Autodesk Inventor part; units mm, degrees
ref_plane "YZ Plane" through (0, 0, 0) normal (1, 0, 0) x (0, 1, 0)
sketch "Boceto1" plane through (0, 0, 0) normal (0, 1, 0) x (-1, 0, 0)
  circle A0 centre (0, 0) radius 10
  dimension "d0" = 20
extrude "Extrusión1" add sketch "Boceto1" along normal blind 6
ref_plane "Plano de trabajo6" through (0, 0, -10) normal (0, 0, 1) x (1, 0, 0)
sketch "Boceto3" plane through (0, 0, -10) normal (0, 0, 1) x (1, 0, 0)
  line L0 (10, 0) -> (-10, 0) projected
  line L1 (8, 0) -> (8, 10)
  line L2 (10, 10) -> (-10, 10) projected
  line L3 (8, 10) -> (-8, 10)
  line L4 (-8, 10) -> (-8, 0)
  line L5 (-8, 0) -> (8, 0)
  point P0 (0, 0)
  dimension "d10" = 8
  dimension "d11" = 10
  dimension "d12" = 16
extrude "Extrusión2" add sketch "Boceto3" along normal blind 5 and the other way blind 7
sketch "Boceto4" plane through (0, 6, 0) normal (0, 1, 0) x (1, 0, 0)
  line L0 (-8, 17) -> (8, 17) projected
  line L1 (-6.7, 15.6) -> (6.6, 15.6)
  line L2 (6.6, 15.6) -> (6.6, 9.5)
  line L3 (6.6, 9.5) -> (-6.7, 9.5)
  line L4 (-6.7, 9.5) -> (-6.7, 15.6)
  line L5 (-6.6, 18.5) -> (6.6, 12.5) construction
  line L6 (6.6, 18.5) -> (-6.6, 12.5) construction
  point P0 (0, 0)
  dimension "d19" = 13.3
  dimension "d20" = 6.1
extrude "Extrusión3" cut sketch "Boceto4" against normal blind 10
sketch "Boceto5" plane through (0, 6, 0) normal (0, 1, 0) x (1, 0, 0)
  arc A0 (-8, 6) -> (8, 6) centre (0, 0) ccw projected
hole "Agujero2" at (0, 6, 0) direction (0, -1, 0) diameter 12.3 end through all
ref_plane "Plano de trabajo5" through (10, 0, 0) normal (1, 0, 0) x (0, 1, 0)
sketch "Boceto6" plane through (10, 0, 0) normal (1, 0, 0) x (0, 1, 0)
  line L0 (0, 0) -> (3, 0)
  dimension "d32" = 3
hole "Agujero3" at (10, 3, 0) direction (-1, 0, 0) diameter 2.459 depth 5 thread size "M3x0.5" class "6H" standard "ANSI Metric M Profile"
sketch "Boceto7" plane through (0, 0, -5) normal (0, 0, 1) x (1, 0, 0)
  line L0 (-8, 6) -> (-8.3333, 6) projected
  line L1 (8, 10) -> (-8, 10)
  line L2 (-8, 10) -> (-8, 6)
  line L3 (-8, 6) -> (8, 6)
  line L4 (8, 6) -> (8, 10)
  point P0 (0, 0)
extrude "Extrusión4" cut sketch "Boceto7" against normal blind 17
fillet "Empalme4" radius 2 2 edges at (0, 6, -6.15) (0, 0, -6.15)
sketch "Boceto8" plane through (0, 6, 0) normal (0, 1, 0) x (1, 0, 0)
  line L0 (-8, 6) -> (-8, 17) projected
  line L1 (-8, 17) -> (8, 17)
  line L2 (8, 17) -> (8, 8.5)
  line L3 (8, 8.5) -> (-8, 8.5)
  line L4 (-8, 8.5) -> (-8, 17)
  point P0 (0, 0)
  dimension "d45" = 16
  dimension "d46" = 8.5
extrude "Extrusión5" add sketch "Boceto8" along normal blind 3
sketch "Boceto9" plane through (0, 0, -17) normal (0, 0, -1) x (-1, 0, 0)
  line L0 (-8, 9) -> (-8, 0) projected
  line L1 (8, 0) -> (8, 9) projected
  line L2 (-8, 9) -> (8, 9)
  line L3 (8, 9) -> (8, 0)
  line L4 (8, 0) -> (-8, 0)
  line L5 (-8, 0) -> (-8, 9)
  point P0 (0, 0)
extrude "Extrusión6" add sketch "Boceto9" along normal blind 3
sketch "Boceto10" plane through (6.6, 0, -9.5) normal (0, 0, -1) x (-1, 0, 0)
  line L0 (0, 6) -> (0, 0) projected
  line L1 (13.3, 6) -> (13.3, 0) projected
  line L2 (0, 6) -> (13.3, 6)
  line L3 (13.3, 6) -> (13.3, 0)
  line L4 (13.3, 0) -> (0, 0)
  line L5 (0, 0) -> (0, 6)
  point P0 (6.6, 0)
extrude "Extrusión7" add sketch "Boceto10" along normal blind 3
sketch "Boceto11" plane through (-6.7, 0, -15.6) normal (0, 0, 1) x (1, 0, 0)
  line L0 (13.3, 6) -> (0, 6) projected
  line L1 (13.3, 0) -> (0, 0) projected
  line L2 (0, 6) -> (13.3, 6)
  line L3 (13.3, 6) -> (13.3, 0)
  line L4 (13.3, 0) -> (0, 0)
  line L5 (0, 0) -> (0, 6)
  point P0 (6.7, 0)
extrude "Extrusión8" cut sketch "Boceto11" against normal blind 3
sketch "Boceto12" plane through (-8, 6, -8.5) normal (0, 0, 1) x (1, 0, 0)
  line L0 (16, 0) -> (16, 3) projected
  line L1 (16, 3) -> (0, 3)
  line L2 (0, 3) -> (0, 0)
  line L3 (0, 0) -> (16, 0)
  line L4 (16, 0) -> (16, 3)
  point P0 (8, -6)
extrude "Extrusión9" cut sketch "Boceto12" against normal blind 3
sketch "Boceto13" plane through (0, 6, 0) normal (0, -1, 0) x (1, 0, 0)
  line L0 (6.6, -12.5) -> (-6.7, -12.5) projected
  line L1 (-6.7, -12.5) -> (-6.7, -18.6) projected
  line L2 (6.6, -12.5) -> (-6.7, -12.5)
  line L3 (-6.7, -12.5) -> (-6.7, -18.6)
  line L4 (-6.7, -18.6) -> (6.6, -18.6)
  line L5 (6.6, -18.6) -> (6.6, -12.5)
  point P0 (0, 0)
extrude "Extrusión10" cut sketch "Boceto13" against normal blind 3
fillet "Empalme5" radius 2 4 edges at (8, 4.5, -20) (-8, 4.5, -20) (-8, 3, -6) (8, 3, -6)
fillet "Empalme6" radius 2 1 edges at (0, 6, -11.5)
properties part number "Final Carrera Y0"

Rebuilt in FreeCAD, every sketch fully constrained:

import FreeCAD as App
import Part
import Sketcher

V = App.Vector


def edges_at(feature, points):
    """Names of the edges that pass closest to the given points."""
    edges = feature.Shape.Edges
    near = lambda p: min(range(len(edges)), key=lambda i: edges[i].distToShape(Part.Vertex(*p))[0])
    return sorted({f"Edge{near(p) + 1}" for p in points})


def add_polygon(sketch, points):
    """Adds a closed chain of lines whose ends are joined by coincident constraints."""
    first, n = sketch.GeometryCount, len(points)
    for a, b in zip(points, points[1:] + points[:1]):
        sketch.addGeometry(Part.LineSegment(App.Vector(*a, 0), App.Vector(*b, 0)), False)
    for i in range(n):
        sketch.addConstraint(Sketcher.Constraint("Coincident", first + i, 2, first + (i + 1) % n, 1))

doc = App.newDocument("Part")
body = doc.addObject("PartDesign::Body", "Body")

# Sketch on XZ plane
sketch1 = body.newObject("Sketcher::SketchObject", "Sketch")
sketch1.AttachmentSupport = (doc.getObject("XZ_Plane"), [""])
sketch1.MapMode = "FlatFace"
sketch1.addGeometry(Part.Circle(V(0, 0, 0), V(0, 0, 1), 10), False)
sketch1.addConstraint(Sketcher.Constraint("Coincident", 0, 3, -1, 1))
sketch1.addConstraint(Sketcher.Constraint("Diameter", 0, 20.0))
pad1 = body.newObject("PartDesign::Pad", "Pad")
pad1.Profile = sketch1
pad1.Length = 6
pad1.Reversed = True

# Sketch on XY plane
sketch2 = body.newObject("Sketcher::SketchObject", "Sketch001")
sketch2.AttachmentSupport = (doc.getObject("XY_Plane"), [""])
sketch2.MapMode = "FlatFace"
sketch2.AttachmentOffset = App.Placement(V(0, 0, -10), App.Rotation())
add_polygon(sketch2, [(-8, 0), (8, 0), (8, 10), (-8, 10)])  # lines 0-3
sketch2.addConstraint(Sketcher.Constraint("Horizontal", 0))
sketch2.addConstraint(Sketcher.Constraint("Vertical", 1))
sketch2.addConstraint(Sketcher.Constraint("Horizontal", 2))
sketch2.addConstraint(Sketcher.Constraint("Vertical", 3))
sketch2.addConstraint(Sketcher.Constraint("Symmetric", 0, 2, 3, 2, -1, 1))
sketch2.addConstraint(Sketcher.Constraint("DistanceX", 0, 1, 0, 2, 16.0))
sketch2.addConstraint(Sketcher.Constraint("DistanceY", 1, 1, 1, 2, 10.0))
pad2 = body.newObject("PartDesign::Pad", "Pad001")
pad2.Profile = sketch2
pad2.Type = "TwoLengths"
pad2.Length = 5
pad2.Length2 = 7

# Sketch on XZ plane
sketch3 = body.newObject("Sketcher::SketchObject", "Sketch002")
sketch3.AttachmentSupport = (doc.getObject("XZ_Plane"), [""])
sketch3.MapMode = "FlatFace"
sketch3.AttachmentOffset = App.Placement(V(0, 0, -6), App.Rotation())
add_polygon(sketch3, [(7, -16), (-7, -16), (-7, -10), (7, -10)])  # lines 0-3
sketch3.addConstraint(Sketcher.Constraint("Horizontal", 0))
sketch3.addConstraint(Sketcher.Constraint("Vertical", 1))
sketch3.addConstraint(Sketcher.Constraint("Horizontal", 2))
sketch3.addConstraint(Sketcher.Constraint("Vertical", 3))
sketch3.addConstraint(Sketcher.Constraint("DistanceX", 0, 2, 0, 1, 13.3))
sketch3.addConstraint(Sketcher.Constraint("DistanceY", 1, 1, 1, 2, 6.1))
sketch3.addConstraint(Sketcher.Constraint("DistanceX", 0, 2, -1, 1, 6.7))
sketch3.addConstraint(Sketcher.Constraint("DistanceY", 0, 2, -1, 1, 15.6))
pocket1 = body.newObject("PartDesign::Pocket", "Pocket")
pocket1.Profile = sketch3
pocket1.Length = 10
pocket1.Reversed = True

# Sketch on XZ plane
sketch4 = body.newObject("Sketcher::SketchObject", "Sketch003")
sketch4.AttachmentSupport = (doc.getObject("XZ_Plane"), [""])
sketch4.MapMode = "FlatFace"
sketch4.AttachmentOffset = App.Placement(V(0, 0, -6), App.Rotation())
sketch4.addGeometry(Part.Circle(V(0, 0, 0), V(0, 0, 1), 6), False)
sketch4.addConstraint(Sketcher.Constraint("Coincident", 0, 3, -1, 1))
sketch4.addConstraint(Sketcher.Constraint("Diameter", 0, 12.3))
doc.recompute()
hole = body.newObject("PartDesign::Hole", "Hole")
hole.Profile = sketch4
hole.ThreadType = "None"
hole.Diameter = 12.3
hole.DepthType = "ThroughAll"
hole.Reversed = True

# Sketch on YZ plane
sketch5 = body.newObject("Sketcher::SketchObject", "Sketch004")
sketch5.AttachmentSupport = (doc.getObject("YZ_Plane"), [""])
sketch5.MapMode = "FlatFace"
sketch5.AttachmentOffset = App.Placement(V(0, 0, 10), App.Rotation())
sketch5.addGeometry(Part.Circle(V(3, 0, 0), V(0, 0, 1), 1.2), False)
sketch5.addConstraint(Sketcher.Constraint("PointOnObject", 0, 3, -1))
sketch5.addConstraint(Sketcher.Constraint("Diameter", 0, 2.459))
sketch5.addConstraint(Sketcher.Constraint("DistanceX", -1, 1, 0, 3, 3.0))
doc.recompute()
hole2 = body.newObject("PartDesign::Hole", "Hole001")
hole2.Profile = sketch5
hole2.ThreadType = "None"
hole2.Diameter = 2.459
hole2.DepthType = "Dimension"
hole2.Depth = 5
hole2.DrillPoint = "Flat"

# Sketch on XY plane
sketch6 = body.newObject("Sketcher::SketchObject", "Sketch005")
sketch6.AttachmentSupport = (doc.getObject("XY_Plane"), [""])
sketch6.MapMode = "FlatFace"
sketch6.AttachmentOffset = App.Placement(V(0, 0, -5), App.Rotation())
add_polygon(sketch6, [(8, 6), (8, 10), (-8, 10), (-8, 6)])  # lines 0-3
sketch6.addConstraint(Sketcher.Constraint("Vertical", 0))
sketch6.addConstraint(Sketcher.Constraint("Horizontal", 1))
sketch6.addConstraint(Sketcher.Constraint("Vertical", 2))
sketch6.addConstraint(Sketcher.Constraint("Horizontal", 3))
sketch6.addConstraint(Sketcher.Constraint("DistanceX", 1, 2, 1, 1, 16.0))
sketch6.addConstraint(Sketcher.Constraint("DistanceY", 0, 1, 0, 2, 4.0))
sketch6.addConstraint(Sketcher.Constraint("DistanceX", -1, 1, 0, 2, 8.0))
sketch6.addConstraint(Sketcher.Constraint("DistanceY", -1, 1, 0, 2, 10.0))
pocket2 = body.newObject("PartDesign::Pocket", "Pocket001")
pocket2.Profile = sketch6
pocket2.Length = 17
doc.recompute()

fillet = body.newObject("PartDesign::Fillet", "Fillet")
fillet.Base = (pocket2, edges_at(pocket2, [(0, 6, -6.15), (0, 0, -6.15)]))
fillet.Radius = 2

# Sketch on XZ plane
sketch7 = body.newObject("Sketcher::SketchObject", "Sketch006")
sketch7.AttachmentSupport = (doc.getObject("XZ_Plane"), [""])
sketch7.MapMode = "FlatFace"
sketch7.AttachmentOffset = App.Placement(V(0, 0, -6), App.Rotation())
add_polygon(sketch7, [(-8, -17), (-8, -8), (8, -8), (8, -17)])  # lines 0-3
sketch7.addConstraint(Sketcher.Constraint("Vertical", 0))
sketch7.addConstraint(Sketcher.Constraint("Horizontal", 1))
sketch7.addConstraint(Sketcher.Constraint("Vertical", 2))
sketch7.addConstraint(Sketcher.Constraint("Horizontal", 3))
sketch7.addConstraint(Sketcher.Constraint("DistanceX", 1, 1, 1, 2, 16.0))
sketch7.addConstraint(Sketcher.Constraint("DistanceY", 0, 1, 0, 2, 8.5))
sketch7.addConstraint(Sketcher.Constraint("DistanceY", 0, 2, -1, 1, 8.5))
sketch7.addConstraint(Sketcher.Constraint("DistanceX", 0, 2, -1, 1, 8.0))
pad3 = body.newObject("PartDesign::Pad", "Pad002")
pad3.Profile = sketch7
pad3.Length = 3
pad3.Reversed = True

# Sketch on XY plane
sketch8 = body.newObject("Sketcher::SketchObject", "Sketch007")
sketch8.AttachmentSupport = (doc.getObject("XY_Plane"), [""])
sketch8.MapMode = "FlatFace"
sketch8.AttachmentOffset = App.Placement(V(0, 0, -17), App.Rotation())
add_polygon(sketch8, [(-8, 9), (8, 9), (8, 0), (-8, 0)])  # lines 0-3
sketch8.addConstraint(Sketcher.Constraint("Horizontal", 0))
sketch8.addConstraint(Sketcher.Constraint("Vertical", 1))
sketch8.addConstraint(Sketcher.Constraint("Horizontal", 2))
sketch8.addConstraint(Sketcher.Constraint("Vertical", 3))
sketch8.addConstraint(Sketcher.Constraint("Symmetric", 1, 2, 2, 2, -1, 1))
sketch8.addConstraint(Sketcher.Constraint("DistanceX", 0, 1, 0, 2, 16.0))
sketch8.addConstraint(Sketcher.Constraint("DistanceY", 1, 2, 1, 1, 9.0))
pad4 = body.newObject("PartDesign::Pad", "Pad003")
pad4.Profile = sketch8
pad4.Length = 3
pad4.Reversed = True

# Sketch on XY plane
sketch9 = body.newObject("Sketcher::SketchObject", "Sketch008")
sketch9.AttachmentSupport = (doc.getObject("XY_Plane"), [""])
sketch9.MapMode = "FlatFace"
sketch9.AttachmentOffset = App.Placement(V(0, 0, -9.5), App.Rotation())
add_polygon(sketch9, [(-7, 6), (7, 6), (7, 0), (-7, 0)])  # lines 0-3
sketch9.addConstraint(Sketcher.Constraint("Horizontal", 0))
sketch9.addConstraint(Sketcher.Constraint("Vertical", 1))
sketch9.addConstraint(Sketcher.Constraint("Horizontal", 2))
sketch9.addConstraint(Sketcher.Constraint("Vertical", 3))
sketch9.addConstraint(Sketcher.Constraint("PointOnObject", 1, 2, -1))
sketch9.addConstraint(Sketcher.Constraint("DistanceY", 1, 2, 1, 1, 6.0))
sketch9.addConstraint(Sketcher.Constraint("DistanceX", 0, 1, 0, 2, 13.3))
sketch9.addConstraint(Sketcher.Constraint("DistanceX", -1, 1, 0, 2, 6.6))
pad5 = body.newObject("PartDesign::Pad", "Pad004")
pad5.Profile = sketch9
pad5.Length = 3
pad5.Reversed = True

# Sketch on XY plane
sketch10 = body.newObject("Sketcher::SketchObject", "Sketch009")
sketch10.AttachmentSupport = (doc.getObject("XY_Plane"), [""])
sketch10.MapMode = "FlatFace"
sketch10.AttachmentOffset = App.Placement(V(0, 0, -15.6), App.Rotation())
add_polygon(sketch10, [(7, 0), (7, 6), (-7, 6), (-7, 0)])  # lines 0-3
sketch10.addConstraint(Sketcher.Constraint("Vertical", 0))
sketch10.addConstraint(Sketcher.Constraint("Horizontal", 1))
sketch10.addConstraint(Sketcher.Constraint("Vertical", 2))
sketch10.addConstraint(Sketcher.Constraint("Horizontal", 3))
sketch10.addConstraint(Sketcher.Constraint("PointOnObject", 2, 2, -1))
sketch10.addConstraint(Sketcher.Constraint("DistanceY", 0, 1, 0, 2, 6.0))
sketch10.addConstraint(Sketcher.Constraint("DistanceX", 1, 2, 1, 1, 13.3))
sketch10.addConstraint(Sketcher.Constraint("DistanceX", -1, 1, 0, 2, 6.6))
pocket3 = body.newObject("PartDesign::Pocket", "Pocket002")
pocket3.Profile = sketch10
pocket3.Length = 3

# Sketch on XY plane
sketch11 = body.newObject("Sketcher::SketchObject", "Sketch010")
sketch11.AttachmentSupport = (doc.getObject("XY_Plane"), [""])
sketch11.MapMode = "FlatFace"
sketch11.AttachmentOffset = App.Placement(V(0, 0, -8.5), App.Rotation())
add_polygon(sketch11, [(-8, 6), (8, 6), (8, 9), (-8, 9)])  # lines 0-3
sketch11.addConstraint(Sketcher.Constraint("Horizontal", 0))
sketch11.addConstraint(Sketcher.Constraint("Vertical", 1))
sketch11.addConstraint(Sketcher.Constraint("Horizontal", 2))
sketch11.addConstraint(Sketcher.Constraint("Vertical", 3))
sketch11.addConstraint(Sketcher.Constraint("DistanceX", 0, 1, 0, 2, 16.0))
sketch11.addConstraint(Sketcher.Constraint("DistanceY", 1, 1, 1, 2, 3.0))
sketch11.addConstraint(Sketcher.Constraint("DistanceX", -1, 1, 0, 2, 8.0))
sketch11.addConstraint(Sketcher.Constraint("DistanceY", -1, 1, 0, 2, 6.0))
pocket4 = body.newObject("PartDesign::Pocket", "Pocket003")
pocket4.Profile = sketch11
pocket4.Length = 3

# Sketch on XZ plane
sketch12 = body.newObject("Sketcher::SketchObject", "Sketch011")
sketch12.AttachmentSupport = (doc.getObject("XZ_Plane"), [""])
sketch12.MapMode = "FlatFace"
sketch12.AttachmentOffset = App.Placement(V(0, 0, -6), App.Rotation())
add_polygon(sketch12, [(7, -19), (7, -12), (-7, -12), (-7, -19)])  # lines 0-3
sketch12.addConstraint(Sketcher.Constraint("Vertical", 0))
sketch12.addConstraint(Sketcher.Constraint("Horizontal", 1))
sketch12.addConstraint(Sketcher.Constraint("Vertical", 2))
sketch12.addConstraint(Sketcher.Constraint("Horizontal", 3))
sketch12.addConstraint(Sketcher.Constraint("DistanceX", 1, 2, 1, 1, 13.3))
sketch12.addConstraint(Sketcher.Constraint("DistanceY", 0, 1, 0, 2, 6.1))
sketch12.addConstraint(Sketcher.Constraint("DistanceX", -1, 1, 0, 2, 6.6))
sketch12.addConstraint(Sketcher.Constraint("DistanceY", 0, 2, -1, 1, 12.5))
pocket5 = body.newObject("PartDesign::Pocket", "Pocket004")
pocket5.Profile = sketch12
pocket5.Length = 3
doc.recompute()

fillet2 = body.newObject("PartDesign::Fillet", "Fillet001")
fillet2.Base = (pocket5, edges_at(pocket5, [
    (8, 4.5, -20),
    (-8, 4.5, -20),
    (-8, 3, -6),
    (8, 3, -6),
]))
fillet2.Radius = 2
doc.recompute()

fillet3 = body.newObject("PartDesign::Fillet", "Fillet002")
fillet3.Base = (fillet2, edges_at(fillet2, [(0, 6, -11.5)]))
fillet3.Radius = 2

doc.recompute()
